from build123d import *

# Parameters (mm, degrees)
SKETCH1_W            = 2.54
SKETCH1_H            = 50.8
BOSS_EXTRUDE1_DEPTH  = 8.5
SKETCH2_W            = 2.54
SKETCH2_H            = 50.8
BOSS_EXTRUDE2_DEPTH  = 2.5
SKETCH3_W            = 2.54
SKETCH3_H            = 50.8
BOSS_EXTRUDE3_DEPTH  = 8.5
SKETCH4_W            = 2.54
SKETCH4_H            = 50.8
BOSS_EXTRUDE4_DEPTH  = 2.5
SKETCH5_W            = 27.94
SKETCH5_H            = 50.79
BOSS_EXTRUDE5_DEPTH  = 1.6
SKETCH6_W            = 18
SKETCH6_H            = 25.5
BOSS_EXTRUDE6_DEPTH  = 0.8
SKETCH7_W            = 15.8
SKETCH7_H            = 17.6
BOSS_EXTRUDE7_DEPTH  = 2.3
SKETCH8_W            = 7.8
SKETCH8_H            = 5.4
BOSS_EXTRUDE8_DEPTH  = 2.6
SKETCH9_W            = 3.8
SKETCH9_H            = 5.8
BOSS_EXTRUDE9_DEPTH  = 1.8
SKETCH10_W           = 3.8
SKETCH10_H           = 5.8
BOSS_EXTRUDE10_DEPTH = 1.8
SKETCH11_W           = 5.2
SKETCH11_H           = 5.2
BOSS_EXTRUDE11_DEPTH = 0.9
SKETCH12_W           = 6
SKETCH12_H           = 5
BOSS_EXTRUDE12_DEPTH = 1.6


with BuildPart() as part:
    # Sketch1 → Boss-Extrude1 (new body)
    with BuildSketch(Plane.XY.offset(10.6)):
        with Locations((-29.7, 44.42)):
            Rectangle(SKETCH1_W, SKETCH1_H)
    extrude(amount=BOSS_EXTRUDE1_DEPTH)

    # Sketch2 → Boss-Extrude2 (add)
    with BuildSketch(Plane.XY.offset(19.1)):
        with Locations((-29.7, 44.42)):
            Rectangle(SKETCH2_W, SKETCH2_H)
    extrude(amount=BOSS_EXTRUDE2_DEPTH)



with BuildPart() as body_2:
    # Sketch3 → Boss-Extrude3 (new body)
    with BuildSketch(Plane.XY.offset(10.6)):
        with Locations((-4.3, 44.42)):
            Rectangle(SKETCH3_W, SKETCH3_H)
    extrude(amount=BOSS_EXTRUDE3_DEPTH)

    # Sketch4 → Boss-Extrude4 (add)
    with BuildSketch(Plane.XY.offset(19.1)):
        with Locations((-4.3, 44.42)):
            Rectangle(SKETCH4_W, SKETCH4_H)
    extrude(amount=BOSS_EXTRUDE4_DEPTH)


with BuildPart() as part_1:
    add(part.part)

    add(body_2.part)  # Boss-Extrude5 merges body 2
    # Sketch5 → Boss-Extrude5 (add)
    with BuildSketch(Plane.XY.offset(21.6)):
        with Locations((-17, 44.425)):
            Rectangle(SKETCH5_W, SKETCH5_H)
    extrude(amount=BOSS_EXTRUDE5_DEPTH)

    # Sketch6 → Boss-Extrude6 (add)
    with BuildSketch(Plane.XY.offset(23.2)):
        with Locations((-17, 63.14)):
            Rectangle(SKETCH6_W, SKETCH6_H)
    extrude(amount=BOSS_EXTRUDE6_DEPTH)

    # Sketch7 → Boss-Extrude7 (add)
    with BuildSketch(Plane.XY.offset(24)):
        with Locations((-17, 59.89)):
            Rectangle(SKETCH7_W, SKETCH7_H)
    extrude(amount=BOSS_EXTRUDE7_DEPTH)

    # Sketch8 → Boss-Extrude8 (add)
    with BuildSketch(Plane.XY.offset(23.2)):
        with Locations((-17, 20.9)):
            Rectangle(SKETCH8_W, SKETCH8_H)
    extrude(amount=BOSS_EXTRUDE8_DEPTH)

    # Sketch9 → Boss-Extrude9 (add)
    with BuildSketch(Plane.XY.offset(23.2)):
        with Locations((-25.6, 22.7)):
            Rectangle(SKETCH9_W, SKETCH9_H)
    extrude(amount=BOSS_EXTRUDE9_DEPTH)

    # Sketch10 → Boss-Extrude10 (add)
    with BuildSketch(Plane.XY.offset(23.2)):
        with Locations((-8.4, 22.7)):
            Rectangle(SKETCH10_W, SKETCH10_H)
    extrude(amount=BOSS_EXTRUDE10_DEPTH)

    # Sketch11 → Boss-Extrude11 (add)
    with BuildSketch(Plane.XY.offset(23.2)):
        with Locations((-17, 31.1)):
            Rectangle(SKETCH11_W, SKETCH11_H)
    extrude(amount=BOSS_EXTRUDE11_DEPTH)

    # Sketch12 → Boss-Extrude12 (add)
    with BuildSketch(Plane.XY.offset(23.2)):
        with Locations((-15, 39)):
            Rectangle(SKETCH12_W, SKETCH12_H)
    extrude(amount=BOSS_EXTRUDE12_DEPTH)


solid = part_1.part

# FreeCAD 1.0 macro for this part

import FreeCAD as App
import Part
import Sketcher
Q = App.Units.Quantity

doc = App.newDocument("Part")
params = doc.addObject("Spreadsheet::Sheet", "Params")
for row, (alias, value) in enumerate([
    ("sketch1_height", "50.8 mm"),
    ("sketch1_width", "2.54 mm"),
    ("pad1_length", "8.5 mm"),
    ("sketch2_height", "50.8 mm"),
    ("sketch2_width", "2.54 mm"),
    ("pad2_length", "2.5 mm"),
    ("sketch3_height", "50.8 mm"),
    ("sketch3_width", "2.54 mm"),
    ("pad3_length", "8.5 mm"),
    ("sketch4_height", "50.8 mm"),
    ("sketch4_width", "2.54 mm"),
    ("pad4_length", "2.5 mm"),
    ("sketch5_width", "27.94 mm"),
    ("sketch5_height", "50.79 mm"),
    ("pad5_length", "1.6 mm"),
    ("sketch6_width", "18 mm"),
    ("sketch6_height", "25.5 mm"),
    ("pad6_length", "0.8 mm"),
    ("sketch7_width", "15.8 mm"),
    ("sketch7_height", "17.6 mm"),
    ("pad7_length", "2.3 mm"),
    ("sketch8_width", "7.8 mm"),
    ("sketch8_height", "5.4 mm"),
    ("pad8_length", "2.6 mm"),
    ("sketch9_width", "3.8 mm"),
    ("sketch9_height", "5.8 mm"),
    ("pad9_length", "1.8 mm"),
    ("sketch10_width", "3.8 mm"),
    ("sketch10_height", "5.8 mm"),
    ("pad10_length", "1.8 mm"),
    ("sketch11_width", "5.2 mm"),
    ("pad11_length", "0.9 mm"),
    ("sketch12_width", "6 mm"),
    ("sketch12_height", "5 mm"),
    ("pad12_length", "1.6 mm"),
], start=1):
    params.set(f"A{row}", alias)
    params.set(f"B{row}", "=" + value)
    params.setAlias(f"B{row}", alias)

body = doc.addObject("PartDesign::Body", "Body")

# Sketch on XY plane
sketch1 = body.newObject("Sketcher::SketchObject", "Sketch")
sketch1.AttachmentSupport = (doc.getObject("XY_Plane"), [""])
sketch1.MapMode = "FlatFace"
sketch1.AttachmentOffset = App.Placement(App.Vector(0, 0, 10.6), App.Rotation())
sketch1.addGeometry([
    Part.LineSegment(App.Vector(-31, 69.8, 0), App.Vector(-31, 19, 0)),
    Part.LineSegment(App.Vector(-31, 19, 0), App.Vector(-28.4, 19, 0)),
    Part.LineSegment(App.Vector(-28.4, 19, 0), App.Vector(-28.4, 69.8, 0)),
    Part.LineSegment(App.Vector(-28.4, 69.8, 0), App.Vector(-31, 69.8, 0)),
], False)
sketch1.addConstraint([
    Sketcher.Constraint("Coincident", 0, 2, 1, 1),
    Sketcher.Constraint("Coincident", 1, 2, 2, 1),
    Sketcher.Constraint("Coincident", 2, 2, 3, 1),
    Sketcher.Constraint("Coincident", 3, 2, 0, 1),
    Sketcher.Constraint("Vertical", 0),
    Sketcher.Constraint("Horizontal", 1),
    Sketcher.Constraint("Vertical", 2),
    Sketcher.Constraint("Horizontal", 3),
    Sketcher.Constraint("DistanceY", 0, 2, 0, 1, Q("50.8 mm")),
    Sketcher.Constraint("DistanceX", 1, 1, 1, 2, Q("2.54 mm")),
    Sketcher.Constraint("DistanceX", 0, 2, -1, 1, Q("30.97 mm")),
    Sketcher.Constraint("DistanceY", -1, 1, 0, 2, Q("19.02 mm")),
])
sketch1.setExpression("Constraints[8]", "Params.sketch1_height")
sketch1.setExpression("Constraints[9]", "Params.sketch1_width")
pad1 = body.newObject("PartDesign::Pad", "Pad")
pad1.Profile = sketch1
pad1.setExpression("Length", "Params.pad1_length")

# Sketch on XY plane
sketch2 = body.newObject("Sketcher::SketchObject", "Sketch001")
sketch2.AttachmentSupport = (doc.getObject("XY_Plane"), [""])
sketch2.MapMode = "FlatFace"
sketch2.AttachmentOffset = App.Placement(App.Vector(0, 0, 19.1), App.Rotation())
sketch2.addGeometry([
    Part.LineSegment(App.Vector(-31, 69.8, 0), App.Vector(-31, 19, 0)),
    Part.LineSegment(App.Vector(-31, 19, 0), App.Vector(-28.4, 19, 0)),
    Part.LineSegment(App.Vector(-28.4, 19, 0), App.Vector(-28.4, 69.8, 0)),
    Part.LineSegment(App.Vector(-28.4, 69.8, 0), App.Vector(-31, 69.8, 0)),
], False)
sketch2.addConstraint([
    Sketcher.Constraint("Coincident", 0, 2, 1, 1),
    Sketcher.Constraint("Coincident", 1, 2, 2, 1),
    Sketcher.Constraint("Coincident", 2, 2, 3, 1),
    Sketcher.Constraint("Coincident", 3, 2, 0, 1),
    Sketcher.Constraint("Vertical", 0),
    Sketcher.Constraint("Horizontal", 1),
    Sketcher.Constraint("Vertical", 2),
    Sketcher.Constraint("Horizontal", 3),
    Sketcher.Constraint("DistanceY", 0, 2, 0, 1, Q("50.8 mm")),
    Sketcher.Constraint("DistanceX", 1, 1, 1, 2, Q("2.54 mm")),
    Sketcher.Constraint("DistanceX", 0, 2, -1, 1, Q("30.97 mm")),
    Sketcher.Constraint("DistanceY", -1, 1, 0, 2, Q("19.02 mm")),
])
sketch2.setExpression("Constraints[8]", "Params.sketch2_height")
sketch2.setExpression("Constraints[9]", "Params.sketch2_width")
pad2 = body.newObject("PartDesign::Pad", "Pad001")
pad2.Profile = sketch2
pad2.setExpression("Length", "Params.pad2_length")
body2 = doc.addObject("PartDesign::Body", "Body001")

# Sketch on XY plane
sketch3 = body2.newObject("Sketcher::SketchObject", "Sketch002")
sketch3.AttachmentSupport = (doc.getObject("XY_Plane001"), [""])
sketch3.MapMode = "FlatFace"
sketch3.AttachmentOffset = App.Placement(App.Vector(0, 0, 10.6), App.Rotation())
sketch3.addGeometry([
    Part.LineSegment(App.Vector(-5.6, 69.8, 0), App.Vector(-5.6, 19, 0)),
    Part.LineSegment(App.Vector(-5.6, 19, 0), App.Vector(-3, 19, 0)),
    Part.LineSegment(App.Vector(-3, 19, 0), App.Vector(-3, 69.8, 0)),
    Part.LineSegment(App.Vector(-3, 69.8, 0), App.Vector(-5.6, 69.8, 0)),
], False)
sketch3.addConstraint([
    Sketcher.Constraint("Coincident", 0, 2, 1, 1),
    Sketcher.Constraint("Coincident", 1, 2, 2, 1),
    Sketcher.Constraint("Coincident", 2, 2, 3, 1),
    Sketcher.Constraint("Coincident", 3, 2, 0, 1),
    Sketcher.Constraint("Vertical", 0),
    Sketcher.Constraint("Horizontal", 1),
    Sketcher.Constraint("Vertical", 2),
    Sketcher.Constraint("Horizontal", 3),
    Sketcher.Constraint("DistanceY", 0, 2, 0, 1, Q("50.8 mm")),
    Sketcher.Constraint("DistanceX", 1, 1, 1, 2, Q("2.54 mm")),
    Sketcher.Constraint("DistanceX", 0, 2, -1, 1, Q("5.57 mm")),
    Sketcher.Constraint("DistanceY", -1, 1, 0, 2, Q("19.02 mm")),
])
sketch3.setExpression("Constraints[8]", "Params.sketch3_height")
sketch3.setExpression("Constraints[9]", "Params.sketch3_width")
pad3 = body2.newObject("PartDesign::Pad", "Pad002")
pad3.Profile = sketch3
pad3.setExpression("Length", "Params.pad3_length")

# Sketch on XY plane
sketch4 = body2.newObject("Sketcher::SketchObject", "Sketch003")
sketch4.AttachmentSupport = (doc.getObject("XY_Plane001"), [""])
sketch4.MapMode = "FlatFace"
sketch4.AttachmentOffset = App.Placement(App.Vector(0, 0, 19.1), App.Rotation())
sketch4.addGeometry([
    Part.LineSegment(App.Vector(-5.6, 69.8, 0), App.Vector(-5.6, 19, 0)),
    Part.LineSegment(App.Vector(-5.6, 19, 0), App.Vector(-3, 19, 0)),
    Part.LineSegment(App.Vector(-3, 19, 0), App.Vector(-3, 69.8, 0)),
    Part.LineSegment(App.Vector(-3, 69.8, 0), App.Vector(-5.6, 69.8, 0)),
], False)
sketch4.addConstraint([
    Sketcher.Constraint("Coincident", 0, 2, 1, 1),
    Sketcher.Constraint("Coincident", 1, 2, 2, 1),
    Sketcher.Constraint("Coincident", 2, 2, 3, 1),
    Sketcher.Constraint("Coincident", 3, 2, 0, 1),
    Sketcher.Constraint("Vertical", 0),
    Sketcher.Constraint("Horizontal", 1),
    Sketcher.Constraint("Vertical", 2),
    Sketcher.Constraint("Horizontal", 3),
    Sketcher.Constraint("DistanceY", 0, 2, 0, 1, Q("50.8 mm")),
    Sketcher.Constraint("DistanceX", 1, 1, 1, 2, Q("2.54 mm")),
    Sketcher.Constraint("DistanceX", 0, 2, -1, 1, Q("5.57 mm")),
    Sketcher.Constraint("DistanceY", -1, 1, 0, 2, Q("19.02 mm")),
])
sketch4.setExpression("Constraints[8]", "Params.sketch4_height")
sketch4.setExpression("Constraints[9]", "Params.sketch4_width")
pad4 = body2.newObject("PartDesign::Pad", "Pad003")
pad4.Profile = sketch4
pad4.setExpression("Length", "Params.pad4_length")
body.AllowCompound = True
doc.recompute()

boolean = body.newObject("PartDesign::Boolean", "Boolean")
boolean.Type = "Fuse"
boolean.addObjects([body2])

# Sketch on XY plane
sketch5 = body.newObject("Sketcher::SketchObject", "Sketch004")
sketch5.AttachmentSupport = (doc.getObject("XY_Plane"), [""])
sketch5.MapMode = "FlatFace"
sketch5.AttachmentOffset = App.Placement(App.Vector(0, 0, 21.6), App.Rotation())
sketch5.addGeometry([
    Part.LineSegment(App.Vector(-31, 70, 0), App.Vector(-31, 19, 0)),
    Part.LineSegment(App.Vector(-31, 19, 0), App.Vector(-3, 19, 0)),
    Part.LineSegment(App.Vector(-3, 19, 0), App.Vector(-3, 70, 0)),
    Part.LineSegment(App.Vector(-3, 70, 0), App.Vector(-31, 70, 0)),
], False)
sketch5.addConstraint([
    Sketcher.Constraint("Coincident", 0, 2, 1, 1),
    Sketcher.Constraint("Coincident", 1, 2, 2, 1),
    Sketcher.Constraint("Coincident", 2, 2, 3, 1),
    Sketcher.Constraint("Coincident", 3, 2, 0, 1),
    Sketcher.Constraint("Vertical", 0),
    Sketcher.Constraint("Horizontal", 1),
    Sketcher.Constraint("Vertical", 2),
    Sketcher.Constraint("Horizontal", 3),
    Sketcher.Constraint("DistanceX", 1, 1, 1, 2, Q("27.94 mm")),
    Sketcher.Constraint("DistanceY", 0, 2, 0, 1, Q("50.79 mm")),
    Sketcher.Constraint("DistanceX", 0, 2, -1, 1, Q("30.97 mm")),
    Sketcher.Constraint("DistanceY", -1, 1, 0, 2, Q("19.03 mm")),
])
sketch5.setExpression("Constraints[8]", "Params.sketch5_width")
sketch5.setExpression("Constraints[9]", "Params.sketch5_height")
pad5 = body.newObject("PartDesign::Pad", "Pad004")
pad5.Profile = sketch5
pad5.setExpression("Length", "Params.pad5_length")

# Sketch on XY plane
sketch6 = body.newObject("Sketcher::SketchObject", "Sketch005")
sketch6.AttachmentSupport = (doc.getObject("XY_Plane"), [""])
sketch6.MapMode = "FlatFace"
sketch6.AttachmentOffset = App.Placement(App.Vector(0, 0, 23.2), App.Rotation())
sketch6.addGeometry([
    Part.LineSegment(App.Vector(-26, 76, 0), App.Vector(-26, 50, 0)),
    Part.LineSegment(App.Vector(-26, 50, 0), App.Vector(-8, 50, 0)),
    Part.LineSegment(App.Vector(-8, 50, 0), App.Vector(-8, 76, 0)),
    Part.LineSegment(App.Vector(-8, 76, 0), App.Vector(-26, 76, 0)),
], False)
sketch6.addConstraint([
    Sketcher.Constraint("Coincident", 0, 2, 1, 1),
    Sketcher.Constraint("Coincident", 1, 2, 2, 1),
    Sketcher.Constraint("Coincident", 2, 2, 3, 1),
    Sketcher.Constraint("Coincident", 3, 2, 0, 1),
    Sketcher.Constraint("Vertical", 0),
    Sketcher.Constraint("Horizontal", 1),
    Sketcher.Constraint("Vertical", 2),
    Sketcher.Constraint("Horizontal", 3),
    Sketcher.Constraint("DistanceX", 1, 1, 1, 2, Q("18 mm")),
    Sketcher.Constraint("DistanceY", 0, 2, 0, 1, Q("25.5 mm")),
    Sketcher.Constraint("DistanceX", 0, 2, -1, 1, Q("26 mm")),
    Sketcher.Constraint("DistanceY", -1, 1, 0, 2, Q("50.39 mm")),
])
sketch6.setExpression("Constraints[8]", "Params.sketch6_width")
sketch6.setExpression("Constraints[9]", "Params.sketch6_height")
pad6 = body.newObject("PartDesign::Pad", "Pad005")
pad6.Profile = sketch6
pad6.setExpression("Length", "Params.pad6_length")

# Sketch on XY plane
sketch7 = body.newObject("Sketcher::SketchObject", "Sketch006")
sketch7.AttachmentSupport = (doc.getObject("XY_Plane"), [""])
sketch7.MapMode = "FlatFace"
sketch7.AttachmentOffset = App.Placement(App.Vector(0, 0, 24), App.Rotation())
sketch7.addGeometry([
    Part.LineSegment(App.Vector(-25, 69, 0), App.Vector(-25, 51, 0)),
    Part.LineSegment(App.Vector(-25, 51, 0), App.Vector(-9, 51, 0)),
    Part.LineSegment(App.Vector(-9, 51, 0), App.Vector(-9, 69, 0)),
    Part.LineSegment(App.Vector(-9, 69, 0), App.Vector(-25, 69, 0)),
], False)
sketch7.addConstraint([
    Sketcher.Constraint("Coincident", 0, 2, 1, 1),
    Sketcher.Constraint("Coincident", 1, 2, 2, 1),
    Sketcher.Constraint("Coincident", 2, 2, 3, 1),
    Sketcher.Constraint("Coincident", 3, 2, 0, 1),
    Sketcher.Constraint("Vertical", 0),
    Sketcher.Constraint("Horizontal", 1),
    Sketcher.Constraint("Vertical", 2),
    Sketcher.Constraint("Horizontal", 3),
    Sketcher.Constraint("DistanceX", 1, 1, 1, 2, Q("15.8 mm")),
    Sketcher.Constraint("DistanceY", 0, 2, 0, 1, Q("17.6 mm")),
    Sketcher.Constraint("DistanceX", 0, 2, -1, 1, Q("24.9 mm")),
    Sketcher.Constraint("DistanceY", -1, 1, 0, 2, Q("51.09 mm")),
])
sketch7.setExpression("Constraints[8]", "Params.sketch7_width")
sketch7.setExpression("Constraints[9]", "Params.sketch7_height")
pad7 = body.newObject("PartDesign::Pad", "Pad006")
pad7.Profile = sketch7
pad7.setExpression("Length", "Params.pad7_length")

# Sketch on XY plane
sketch8 = body.newObject("Sketcher::SketchObject", "Sketch007")
sketch8.AttachmentSupport = (doc.getObject("XY_Plane"), [""])
sketch8.MapMode = "FlatFace"
sketch8.AttachmentOffset = App.Placement(App.Vector(0, 0, 23.2), App.Rotation())
sketch8.addGeometry([
    Part.LineSegment(App.Vector(-21, 24, 0), App.Vector(-21, 18, 0)),
    Part.LineSegment(App.Vector(-21, 18, 0), App.Vector(-13, 18, 0)),
    Part.LineSegment(App.Vector(-13, 18, 0), App.Vector(-13, 24, 0)),
    Part.LineSegment(App.Vector(-13, 24, 0), App.Vector(-21, 24, 0)),
], False)
sketch8.addConstraint([
    Sketcher.Constraint("Coincident", 0, 2, 1, 1),
    Sketcher.Constraint("Coincident", 1, 2, 2, 1),
    Sketcher.Constraint("Coincident", 2, 2, 3, 1),
    Sketcher.Constraint("Coincident", 3, 2, 0, 1),
    Sketcher.Constraint("Vertical", 0),
    Sketcher.Constraint("Horizontal", 1),
    Sketcher.Constraint("Vertical", 2),
    Sketcher.Constraint("Horizontal", 3),
    Sketcher.Constraint("DistanceX", 1, 1, 1, 2, Q("7.8 mm")),
    Sketcher.Constraint("DistanceY", 0, 2, 0, 1, Q("5.4 mm")),
    Sketcher.Constraint("DistanceX", 0, 2, -1, 1, Q("20.9 mm")),
    Sketcher.Constraint("DistanceY", -1, 1, 0, 2, Q("18.2 mm")),
])
sketch8.setExpression("Constraints[8]", "Params.sketch8_width")
sketch8.setExpression("Constraints[9]", "Params.sketch8_height")
pad8 = body.newObject("PartDesign::Pad", "Pad007")
pad8.Profile = sketch8
pad8.setExpression("Length", "Params.pad8_length")

# Sketch on XY plane
sketch9 = body.newObject("Sketcher::SketchObject", "Sketch008")
sketch9.AttachmentSupport = (doc.getObject("XY_Plane"), [""])
sketch9.MapMode = "FlatFace"
sketch9.AttachmentOffset = App.Placement(App.Vector(0, 0, 23.2), App.Rotation())
sketch9.addGeometry([
    Part.LineSegment(App.Vector(-27.5, 25.6, 0), App.Vector(-27.5, 19.8, 0)),
    Part.LineSegment(App.Vector(-27.5, 19.8, 0), App.Vector(-23.7, 19.8, 0)),
    Part.LineSegment(App.Vector(-23.7, 19.8, 0), App.Vector(-23.7, 25.6, 0)),
    Part.LineSegment(App.Vector(-23.7, 25.6, 0), App.Vector(-27.5, 25.6, 0)),
], False)
sketch9.addConstraint([
    Sketcher.Constraint("Coincident", 0, 2, 1, 1),
    Sketcher.Constraint("Coincident", 1, 2, 2, 1),
    Sketcher.Constraint("Coincident", 2, 2, 3, 1),
    Sketcher.Constraint("Coincident", 3, 2, 0, 1),
    Sketcher.Constraint("Vertical", 0),
    Sketcher.Constraint("Horizontal", 1),
    Sketcher.Constraint("Vertical", 2),
    Sketcher.Constraint("Horizontal", 3),
    Sketcher.Constraint("DistanceX", 1, 1, 1, 2, Q("3.8 mm")),
    Sketcher.Constraint("DistanceY", 0, 2, 0, 1, Q("5.8 mm")),
    Sketcher.Constraint("DistanceX", 0, 2, -1, 1, Q("27.5 mm")),
    Sketcher.Constraint("DistanceY", -1, 1, 0, 2, Q("19.8 mm")),
])
sketch9.setExpression("Constraints[8]", "Params.sketch9_width")
sketch9.setExpression("Constraints[9]", "Params.sketch9_height")
pad9 = body.newObject("PartDesign::Pad", "Pad008")
pad9.Profile = sketch9
pad9.setExpression("Length", "Params.pad9_length")

# Sketch on XY plane
sketch10 = body.newObject("Sketcher::SketchObject", "Sketch009")
sketch10.AttachmentSupport = (doc.getObject("XY_Plane"), [""])
sketch10.MapMode = "FlatFace"
sketch10.AttachmentOffset = App.Placement(App.Vector(0, 0, 23.2), App.Rotation())
sketch10.addGeometry([
    Part.LineSegment(App.Vector(-10.3, 25.6, 0), App.Vector(-10.3, 19.8, 0)),
    Part.LineSegment(App.Vector(-10.3, 19.8, 0), App.Vector(-6.5, 19.8, 0)),
    Part.LineSegment(App.Vector(-6.5, 19.8, 0), App.Vector(-6.5, 25.6, 0)),
    Part.LineSegment(App.Vector(-6.5, 25.6, 0), App.Vector(-10.3, 25.6, 0)),
], False)
sketch10.addConstraint([
    Sketcher.Constraint("Coincident", 0, 2, 1, 1),
    Sketcher.Constraint("Coincident", 1, 2, 2, 1),
    Sketcher.Constraint("Coincident", 2, 2, 3, 1),
    Sketcher.Constraint("Coincident", 3, 2, 0, 1),
    Sketcher.Constraint("Vertical", 0),
    Sketcher.Constraint("Horizontal", 1),
    Sketcher.Constraint("Vertical", 2),
    Sketcher.Constraint("Horizontal", 3),
    Sketcher.Constraint("DistanceX", 1, 1, 1, 2, Q("3.8 mm")),
    Sketcher.Constraint("DistanceY", 0, 2, 0, 1, Q("5.8 mm")),
    Sketcher.Constraint("DistanceX", 0, 2, -1, 1, Q("10.3 mm")),
    Sketcher.Constraint("DistanceY", -1, 1, 0, 2, Q("19.8 mm")),
])
sketch10.setExpression("Constraints[8]", "Params.sketch10_width")
sketch10.setExpression("Constraints[9]", "Params.sketch10_height")
pad10 = body.newObject("PartDesign::Pad", "Pad009")
pad10.Profile = sketch10
pad10.setExpression("Length", "Params.pad10_length")

# Sketch on XY plane
sketch11 = body.newObject("Sketcher::SketchObject", "Sketch010")
sketch11.AttachmentSupport = (doc.getObject("XY_Plane"), [""])
sketch11.MapMode = "FlatFace"
sketch11.AttachmentOffset = App.Placement(App.Vector(0, 0, 23.2), App.Rotation())
sketch11.addGeometry([
    Part.LineSegment(App.Vector(-20, 34, 0), App.Vector(-20, 28, 0)),
    Part.LineSegment(App.Vector(-20, 28, 0), App.Vector(-14, 28, 0)),
    Part.LineSegment(App.Vector(-14, 28, 0), App.Vector(-14, 34, 0)),
    Part.LineSegment(App.Vector(-14, 34, 0), App.Vector(-20, 34, 0)),
], False)
sketch11.addConstraint([
    Sketcher.Constraint("Coincident", 0, 2, 1, 1),
    Sketcher.Constraint("Coincident", 1, 2, 2, 1),
    Sketcher.Constraint("Coincident", 2, 2, 3, 1),
    Sketcher.Constraint("Coincident", 3, 2, 0, 1),
    Sketcher.Constraint("Vertical", 0),
    Sketcher.Constraint("Horizontal", 1),
    Sketcher.Constraint("Vertical", 2),
    Sketcher.Constraint("Horizontal", 3),
    Sketcher.Constraint("Equal", 3, 0),
    Sketcher.Constraint("DistanceX", 1, 1, 1, 2, Q("5.2 mm")),
    Sketcher.Constraint("DistanceX", 0, 2, -1, 1, Q("19.6 mm")),
    Sketcher.Constraint("DistanceY", -1, 1, 0, 2, Q("28.5 mm")),
])
sketch11.setExpression("Constraints[9]", "Params.sketch11_width")
pad11 = body.newObject("PartDesign::Pad", "Pad010")
pad11.Profile = sketch11
pad11.setExpression("Length", "Params.pad11_length")

# Sketch on XY plane
sketch12 = body.newObject("Sketcher::SketchObject", "Sketch011")
sketch12.AttachmentSupport = (doc.getObject("XY_Plane"), [""])
sketch12.MapMode = "FlatFace"
sketch12.AttachmentOffset = App.Placement(App.Vector(0, 0, 23.2), App.Rotation())
sketch12.addGeometry([
    Part.LineSegment(App.Vector(-18, 42, 0), App.Vector(-18, 36, 0)),
    Part.LineSegment(App.Vector(-18, 36, 0), App.Vector(-12, 36, 0)),
    Part.LineSegment(App.Vector(-12, 36, 0), App.Vector(-12, 42, 0)),
    Part.LineSegment(App.Vector(-12, 42, 0), App.Vector(-18, 42, 0)),
], False)
sketch12.addConstraint([
    Sketcher.Constraint("Coincident", 0, 2, 1, 1),
    Sketcher.Constraint("Coincident", 1, 2, 2, 1),
    Sketcher.Constraint("Coincident", 2, 2, 3, 1),
    Sketcher.Constraint("Coincident", 3, 2, 0, 1),
    Sketcher.Constraint("Vertical", 0),
    Sketcher.Constraint("Horizontal", 1),
    Sketcher.Constraint("Vertical", 2),
    Sketcher.Constraint("Horizontal", 3),
    Sketcher.Constraint("DistanceX", 1, 1, 1, 2, Q("6 mm")),
    Sketcher.Constraint("DistanceY", 0, 2, 0, 1, Q("5 mm")),
    Sketcher.Constraint("DistanceX", 0, 2, -1, 1, Q("18 mm")),
    Sketcher.Constraint("DistanceY", -1, 1, 0, 2, Q("36.5 mm")),
])
sketch12.setExpression("Constraints[8]", "Params.sketch12_width")
sketch12.setExpression("Constraints[9]", "Params.sketch12_height")
pad12 = body.newObject("PartDesign::Pad", "Pad011")
pad12.Profile = sketch12
pad12.setExpression("Length", "Params.pad12_length")

doc.recompute()
